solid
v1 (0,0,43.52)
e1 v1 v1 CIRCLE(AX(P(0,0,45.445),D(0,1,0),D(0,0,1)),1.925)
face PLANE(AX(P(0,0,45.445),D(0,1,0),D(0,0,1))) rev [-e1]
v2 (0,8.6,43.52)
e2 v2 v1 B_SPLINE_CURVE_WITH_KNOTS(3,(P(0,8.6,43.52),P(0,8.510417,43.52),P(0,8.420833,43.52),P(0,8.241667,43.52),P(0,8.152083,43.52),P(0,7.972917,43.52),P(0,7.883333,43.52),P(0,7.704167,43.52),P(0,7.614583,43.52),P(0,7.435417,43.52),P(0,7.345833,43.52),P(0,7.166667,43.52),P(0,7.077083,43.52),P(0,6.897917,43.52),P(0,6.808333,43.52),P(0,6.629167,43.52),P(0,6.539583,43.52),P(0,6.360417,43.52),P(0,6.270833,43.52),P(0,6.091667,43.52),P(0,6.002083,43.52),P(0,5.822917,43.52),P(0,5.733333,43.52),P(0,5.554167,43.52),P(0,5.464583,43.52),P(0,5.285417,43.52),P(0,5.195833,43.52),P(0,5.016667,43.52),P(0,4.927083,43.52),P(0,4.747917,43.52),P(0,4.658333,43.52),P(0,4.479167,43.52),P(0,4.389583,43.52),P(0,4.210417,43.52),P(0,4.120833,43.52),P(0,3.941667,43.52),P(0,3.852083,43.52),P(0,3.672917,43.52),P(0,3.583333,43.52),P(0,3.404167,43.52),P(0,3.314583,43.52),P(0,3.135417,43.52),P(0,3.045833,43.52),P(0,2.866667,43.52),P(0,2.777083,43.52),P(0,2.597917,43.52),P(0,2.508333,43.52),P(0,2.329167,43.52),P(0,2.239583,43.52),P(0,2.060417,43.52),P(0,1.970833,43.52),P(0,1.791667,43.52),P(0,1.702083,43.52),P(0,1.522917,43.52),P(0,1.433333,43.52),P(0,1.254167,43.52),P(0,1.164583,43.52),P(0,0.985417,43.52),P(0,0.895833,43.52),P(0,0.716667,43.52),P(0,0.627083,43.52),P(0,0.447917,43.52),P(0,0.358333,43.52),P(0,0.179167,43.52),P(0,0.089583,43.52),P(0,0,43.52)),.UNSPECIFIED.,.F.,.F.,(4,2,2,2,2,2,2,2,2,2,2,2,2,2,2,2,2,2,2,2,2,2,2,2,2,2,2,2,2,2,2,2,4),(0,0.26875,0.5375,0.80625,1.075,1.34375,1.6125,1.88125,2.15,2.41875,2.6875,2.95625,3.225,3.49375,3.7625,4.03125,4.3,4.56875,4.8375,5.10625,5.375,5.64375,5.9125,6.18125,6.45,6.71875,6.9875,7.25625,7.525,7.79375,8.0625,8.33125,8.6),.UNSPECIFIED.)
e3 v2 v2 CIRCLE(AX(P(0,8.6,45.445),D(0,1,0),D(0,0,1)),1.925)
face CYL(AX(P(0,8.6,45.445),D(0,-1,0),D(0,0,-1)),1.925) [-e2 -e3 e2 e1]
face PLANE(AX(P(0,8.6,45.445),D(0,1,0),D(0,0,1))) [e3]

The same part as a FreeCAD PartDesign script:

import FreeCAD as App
import Part
import Sketcher
from FreeCAD import Vector
Q = App.Units.Quantity

doc = App.newDocument("Part")
params = doc.addObject("Spreadsheet::Sheet", "Params")
for row, (alias, value) in enumerate([
    ("sketch1_diameter", "3.85 mm"),
    ("pad1_length", "8.6 mm"),
], start=1):
    params.set(f"A{row}", alias)
    params.set(f"B{row}", "=" + value)
    params.setAlias(f"B{row}", alias)

body = doc.addObject("PartDesign::Body", "Body")

# Sketch on XZ plane
sketch1 = body.newObject("Sketcher::SketchObject", "Sketch")
sketch1.AttachmentSupport = (doc.getObject("XZ_Plane"), [""])
sketch1.MapMode = "FlatFace"
sketch1.addGeometry(Part.Circle(Vector(0, 45.4, 0), Vector(0, 0, 1), 1.9), False)
sketch1.addConstraint(Sketcher.Constraint("PointOnObject", 0, 3, -2))
sketch1.addConstraint(Sketcher.Constraint("Diameter", 0, Q("3.85 mm")))
sketch1.addConstraint(Sketcher.Constraint("DistanceY", -1, 1, 0, 3, Q("45.445 mm")))
sketch1.setExpression("Constraints[1]", "Params.sketch1_diameter")
pad1 = body.newObject("PartDesign::Pad", "Pad")
pad1.Profile = sketch1
pad1.setExpression("Length", "Params.pad1_length")
pad1.Reversed = True

doc.recompute()
